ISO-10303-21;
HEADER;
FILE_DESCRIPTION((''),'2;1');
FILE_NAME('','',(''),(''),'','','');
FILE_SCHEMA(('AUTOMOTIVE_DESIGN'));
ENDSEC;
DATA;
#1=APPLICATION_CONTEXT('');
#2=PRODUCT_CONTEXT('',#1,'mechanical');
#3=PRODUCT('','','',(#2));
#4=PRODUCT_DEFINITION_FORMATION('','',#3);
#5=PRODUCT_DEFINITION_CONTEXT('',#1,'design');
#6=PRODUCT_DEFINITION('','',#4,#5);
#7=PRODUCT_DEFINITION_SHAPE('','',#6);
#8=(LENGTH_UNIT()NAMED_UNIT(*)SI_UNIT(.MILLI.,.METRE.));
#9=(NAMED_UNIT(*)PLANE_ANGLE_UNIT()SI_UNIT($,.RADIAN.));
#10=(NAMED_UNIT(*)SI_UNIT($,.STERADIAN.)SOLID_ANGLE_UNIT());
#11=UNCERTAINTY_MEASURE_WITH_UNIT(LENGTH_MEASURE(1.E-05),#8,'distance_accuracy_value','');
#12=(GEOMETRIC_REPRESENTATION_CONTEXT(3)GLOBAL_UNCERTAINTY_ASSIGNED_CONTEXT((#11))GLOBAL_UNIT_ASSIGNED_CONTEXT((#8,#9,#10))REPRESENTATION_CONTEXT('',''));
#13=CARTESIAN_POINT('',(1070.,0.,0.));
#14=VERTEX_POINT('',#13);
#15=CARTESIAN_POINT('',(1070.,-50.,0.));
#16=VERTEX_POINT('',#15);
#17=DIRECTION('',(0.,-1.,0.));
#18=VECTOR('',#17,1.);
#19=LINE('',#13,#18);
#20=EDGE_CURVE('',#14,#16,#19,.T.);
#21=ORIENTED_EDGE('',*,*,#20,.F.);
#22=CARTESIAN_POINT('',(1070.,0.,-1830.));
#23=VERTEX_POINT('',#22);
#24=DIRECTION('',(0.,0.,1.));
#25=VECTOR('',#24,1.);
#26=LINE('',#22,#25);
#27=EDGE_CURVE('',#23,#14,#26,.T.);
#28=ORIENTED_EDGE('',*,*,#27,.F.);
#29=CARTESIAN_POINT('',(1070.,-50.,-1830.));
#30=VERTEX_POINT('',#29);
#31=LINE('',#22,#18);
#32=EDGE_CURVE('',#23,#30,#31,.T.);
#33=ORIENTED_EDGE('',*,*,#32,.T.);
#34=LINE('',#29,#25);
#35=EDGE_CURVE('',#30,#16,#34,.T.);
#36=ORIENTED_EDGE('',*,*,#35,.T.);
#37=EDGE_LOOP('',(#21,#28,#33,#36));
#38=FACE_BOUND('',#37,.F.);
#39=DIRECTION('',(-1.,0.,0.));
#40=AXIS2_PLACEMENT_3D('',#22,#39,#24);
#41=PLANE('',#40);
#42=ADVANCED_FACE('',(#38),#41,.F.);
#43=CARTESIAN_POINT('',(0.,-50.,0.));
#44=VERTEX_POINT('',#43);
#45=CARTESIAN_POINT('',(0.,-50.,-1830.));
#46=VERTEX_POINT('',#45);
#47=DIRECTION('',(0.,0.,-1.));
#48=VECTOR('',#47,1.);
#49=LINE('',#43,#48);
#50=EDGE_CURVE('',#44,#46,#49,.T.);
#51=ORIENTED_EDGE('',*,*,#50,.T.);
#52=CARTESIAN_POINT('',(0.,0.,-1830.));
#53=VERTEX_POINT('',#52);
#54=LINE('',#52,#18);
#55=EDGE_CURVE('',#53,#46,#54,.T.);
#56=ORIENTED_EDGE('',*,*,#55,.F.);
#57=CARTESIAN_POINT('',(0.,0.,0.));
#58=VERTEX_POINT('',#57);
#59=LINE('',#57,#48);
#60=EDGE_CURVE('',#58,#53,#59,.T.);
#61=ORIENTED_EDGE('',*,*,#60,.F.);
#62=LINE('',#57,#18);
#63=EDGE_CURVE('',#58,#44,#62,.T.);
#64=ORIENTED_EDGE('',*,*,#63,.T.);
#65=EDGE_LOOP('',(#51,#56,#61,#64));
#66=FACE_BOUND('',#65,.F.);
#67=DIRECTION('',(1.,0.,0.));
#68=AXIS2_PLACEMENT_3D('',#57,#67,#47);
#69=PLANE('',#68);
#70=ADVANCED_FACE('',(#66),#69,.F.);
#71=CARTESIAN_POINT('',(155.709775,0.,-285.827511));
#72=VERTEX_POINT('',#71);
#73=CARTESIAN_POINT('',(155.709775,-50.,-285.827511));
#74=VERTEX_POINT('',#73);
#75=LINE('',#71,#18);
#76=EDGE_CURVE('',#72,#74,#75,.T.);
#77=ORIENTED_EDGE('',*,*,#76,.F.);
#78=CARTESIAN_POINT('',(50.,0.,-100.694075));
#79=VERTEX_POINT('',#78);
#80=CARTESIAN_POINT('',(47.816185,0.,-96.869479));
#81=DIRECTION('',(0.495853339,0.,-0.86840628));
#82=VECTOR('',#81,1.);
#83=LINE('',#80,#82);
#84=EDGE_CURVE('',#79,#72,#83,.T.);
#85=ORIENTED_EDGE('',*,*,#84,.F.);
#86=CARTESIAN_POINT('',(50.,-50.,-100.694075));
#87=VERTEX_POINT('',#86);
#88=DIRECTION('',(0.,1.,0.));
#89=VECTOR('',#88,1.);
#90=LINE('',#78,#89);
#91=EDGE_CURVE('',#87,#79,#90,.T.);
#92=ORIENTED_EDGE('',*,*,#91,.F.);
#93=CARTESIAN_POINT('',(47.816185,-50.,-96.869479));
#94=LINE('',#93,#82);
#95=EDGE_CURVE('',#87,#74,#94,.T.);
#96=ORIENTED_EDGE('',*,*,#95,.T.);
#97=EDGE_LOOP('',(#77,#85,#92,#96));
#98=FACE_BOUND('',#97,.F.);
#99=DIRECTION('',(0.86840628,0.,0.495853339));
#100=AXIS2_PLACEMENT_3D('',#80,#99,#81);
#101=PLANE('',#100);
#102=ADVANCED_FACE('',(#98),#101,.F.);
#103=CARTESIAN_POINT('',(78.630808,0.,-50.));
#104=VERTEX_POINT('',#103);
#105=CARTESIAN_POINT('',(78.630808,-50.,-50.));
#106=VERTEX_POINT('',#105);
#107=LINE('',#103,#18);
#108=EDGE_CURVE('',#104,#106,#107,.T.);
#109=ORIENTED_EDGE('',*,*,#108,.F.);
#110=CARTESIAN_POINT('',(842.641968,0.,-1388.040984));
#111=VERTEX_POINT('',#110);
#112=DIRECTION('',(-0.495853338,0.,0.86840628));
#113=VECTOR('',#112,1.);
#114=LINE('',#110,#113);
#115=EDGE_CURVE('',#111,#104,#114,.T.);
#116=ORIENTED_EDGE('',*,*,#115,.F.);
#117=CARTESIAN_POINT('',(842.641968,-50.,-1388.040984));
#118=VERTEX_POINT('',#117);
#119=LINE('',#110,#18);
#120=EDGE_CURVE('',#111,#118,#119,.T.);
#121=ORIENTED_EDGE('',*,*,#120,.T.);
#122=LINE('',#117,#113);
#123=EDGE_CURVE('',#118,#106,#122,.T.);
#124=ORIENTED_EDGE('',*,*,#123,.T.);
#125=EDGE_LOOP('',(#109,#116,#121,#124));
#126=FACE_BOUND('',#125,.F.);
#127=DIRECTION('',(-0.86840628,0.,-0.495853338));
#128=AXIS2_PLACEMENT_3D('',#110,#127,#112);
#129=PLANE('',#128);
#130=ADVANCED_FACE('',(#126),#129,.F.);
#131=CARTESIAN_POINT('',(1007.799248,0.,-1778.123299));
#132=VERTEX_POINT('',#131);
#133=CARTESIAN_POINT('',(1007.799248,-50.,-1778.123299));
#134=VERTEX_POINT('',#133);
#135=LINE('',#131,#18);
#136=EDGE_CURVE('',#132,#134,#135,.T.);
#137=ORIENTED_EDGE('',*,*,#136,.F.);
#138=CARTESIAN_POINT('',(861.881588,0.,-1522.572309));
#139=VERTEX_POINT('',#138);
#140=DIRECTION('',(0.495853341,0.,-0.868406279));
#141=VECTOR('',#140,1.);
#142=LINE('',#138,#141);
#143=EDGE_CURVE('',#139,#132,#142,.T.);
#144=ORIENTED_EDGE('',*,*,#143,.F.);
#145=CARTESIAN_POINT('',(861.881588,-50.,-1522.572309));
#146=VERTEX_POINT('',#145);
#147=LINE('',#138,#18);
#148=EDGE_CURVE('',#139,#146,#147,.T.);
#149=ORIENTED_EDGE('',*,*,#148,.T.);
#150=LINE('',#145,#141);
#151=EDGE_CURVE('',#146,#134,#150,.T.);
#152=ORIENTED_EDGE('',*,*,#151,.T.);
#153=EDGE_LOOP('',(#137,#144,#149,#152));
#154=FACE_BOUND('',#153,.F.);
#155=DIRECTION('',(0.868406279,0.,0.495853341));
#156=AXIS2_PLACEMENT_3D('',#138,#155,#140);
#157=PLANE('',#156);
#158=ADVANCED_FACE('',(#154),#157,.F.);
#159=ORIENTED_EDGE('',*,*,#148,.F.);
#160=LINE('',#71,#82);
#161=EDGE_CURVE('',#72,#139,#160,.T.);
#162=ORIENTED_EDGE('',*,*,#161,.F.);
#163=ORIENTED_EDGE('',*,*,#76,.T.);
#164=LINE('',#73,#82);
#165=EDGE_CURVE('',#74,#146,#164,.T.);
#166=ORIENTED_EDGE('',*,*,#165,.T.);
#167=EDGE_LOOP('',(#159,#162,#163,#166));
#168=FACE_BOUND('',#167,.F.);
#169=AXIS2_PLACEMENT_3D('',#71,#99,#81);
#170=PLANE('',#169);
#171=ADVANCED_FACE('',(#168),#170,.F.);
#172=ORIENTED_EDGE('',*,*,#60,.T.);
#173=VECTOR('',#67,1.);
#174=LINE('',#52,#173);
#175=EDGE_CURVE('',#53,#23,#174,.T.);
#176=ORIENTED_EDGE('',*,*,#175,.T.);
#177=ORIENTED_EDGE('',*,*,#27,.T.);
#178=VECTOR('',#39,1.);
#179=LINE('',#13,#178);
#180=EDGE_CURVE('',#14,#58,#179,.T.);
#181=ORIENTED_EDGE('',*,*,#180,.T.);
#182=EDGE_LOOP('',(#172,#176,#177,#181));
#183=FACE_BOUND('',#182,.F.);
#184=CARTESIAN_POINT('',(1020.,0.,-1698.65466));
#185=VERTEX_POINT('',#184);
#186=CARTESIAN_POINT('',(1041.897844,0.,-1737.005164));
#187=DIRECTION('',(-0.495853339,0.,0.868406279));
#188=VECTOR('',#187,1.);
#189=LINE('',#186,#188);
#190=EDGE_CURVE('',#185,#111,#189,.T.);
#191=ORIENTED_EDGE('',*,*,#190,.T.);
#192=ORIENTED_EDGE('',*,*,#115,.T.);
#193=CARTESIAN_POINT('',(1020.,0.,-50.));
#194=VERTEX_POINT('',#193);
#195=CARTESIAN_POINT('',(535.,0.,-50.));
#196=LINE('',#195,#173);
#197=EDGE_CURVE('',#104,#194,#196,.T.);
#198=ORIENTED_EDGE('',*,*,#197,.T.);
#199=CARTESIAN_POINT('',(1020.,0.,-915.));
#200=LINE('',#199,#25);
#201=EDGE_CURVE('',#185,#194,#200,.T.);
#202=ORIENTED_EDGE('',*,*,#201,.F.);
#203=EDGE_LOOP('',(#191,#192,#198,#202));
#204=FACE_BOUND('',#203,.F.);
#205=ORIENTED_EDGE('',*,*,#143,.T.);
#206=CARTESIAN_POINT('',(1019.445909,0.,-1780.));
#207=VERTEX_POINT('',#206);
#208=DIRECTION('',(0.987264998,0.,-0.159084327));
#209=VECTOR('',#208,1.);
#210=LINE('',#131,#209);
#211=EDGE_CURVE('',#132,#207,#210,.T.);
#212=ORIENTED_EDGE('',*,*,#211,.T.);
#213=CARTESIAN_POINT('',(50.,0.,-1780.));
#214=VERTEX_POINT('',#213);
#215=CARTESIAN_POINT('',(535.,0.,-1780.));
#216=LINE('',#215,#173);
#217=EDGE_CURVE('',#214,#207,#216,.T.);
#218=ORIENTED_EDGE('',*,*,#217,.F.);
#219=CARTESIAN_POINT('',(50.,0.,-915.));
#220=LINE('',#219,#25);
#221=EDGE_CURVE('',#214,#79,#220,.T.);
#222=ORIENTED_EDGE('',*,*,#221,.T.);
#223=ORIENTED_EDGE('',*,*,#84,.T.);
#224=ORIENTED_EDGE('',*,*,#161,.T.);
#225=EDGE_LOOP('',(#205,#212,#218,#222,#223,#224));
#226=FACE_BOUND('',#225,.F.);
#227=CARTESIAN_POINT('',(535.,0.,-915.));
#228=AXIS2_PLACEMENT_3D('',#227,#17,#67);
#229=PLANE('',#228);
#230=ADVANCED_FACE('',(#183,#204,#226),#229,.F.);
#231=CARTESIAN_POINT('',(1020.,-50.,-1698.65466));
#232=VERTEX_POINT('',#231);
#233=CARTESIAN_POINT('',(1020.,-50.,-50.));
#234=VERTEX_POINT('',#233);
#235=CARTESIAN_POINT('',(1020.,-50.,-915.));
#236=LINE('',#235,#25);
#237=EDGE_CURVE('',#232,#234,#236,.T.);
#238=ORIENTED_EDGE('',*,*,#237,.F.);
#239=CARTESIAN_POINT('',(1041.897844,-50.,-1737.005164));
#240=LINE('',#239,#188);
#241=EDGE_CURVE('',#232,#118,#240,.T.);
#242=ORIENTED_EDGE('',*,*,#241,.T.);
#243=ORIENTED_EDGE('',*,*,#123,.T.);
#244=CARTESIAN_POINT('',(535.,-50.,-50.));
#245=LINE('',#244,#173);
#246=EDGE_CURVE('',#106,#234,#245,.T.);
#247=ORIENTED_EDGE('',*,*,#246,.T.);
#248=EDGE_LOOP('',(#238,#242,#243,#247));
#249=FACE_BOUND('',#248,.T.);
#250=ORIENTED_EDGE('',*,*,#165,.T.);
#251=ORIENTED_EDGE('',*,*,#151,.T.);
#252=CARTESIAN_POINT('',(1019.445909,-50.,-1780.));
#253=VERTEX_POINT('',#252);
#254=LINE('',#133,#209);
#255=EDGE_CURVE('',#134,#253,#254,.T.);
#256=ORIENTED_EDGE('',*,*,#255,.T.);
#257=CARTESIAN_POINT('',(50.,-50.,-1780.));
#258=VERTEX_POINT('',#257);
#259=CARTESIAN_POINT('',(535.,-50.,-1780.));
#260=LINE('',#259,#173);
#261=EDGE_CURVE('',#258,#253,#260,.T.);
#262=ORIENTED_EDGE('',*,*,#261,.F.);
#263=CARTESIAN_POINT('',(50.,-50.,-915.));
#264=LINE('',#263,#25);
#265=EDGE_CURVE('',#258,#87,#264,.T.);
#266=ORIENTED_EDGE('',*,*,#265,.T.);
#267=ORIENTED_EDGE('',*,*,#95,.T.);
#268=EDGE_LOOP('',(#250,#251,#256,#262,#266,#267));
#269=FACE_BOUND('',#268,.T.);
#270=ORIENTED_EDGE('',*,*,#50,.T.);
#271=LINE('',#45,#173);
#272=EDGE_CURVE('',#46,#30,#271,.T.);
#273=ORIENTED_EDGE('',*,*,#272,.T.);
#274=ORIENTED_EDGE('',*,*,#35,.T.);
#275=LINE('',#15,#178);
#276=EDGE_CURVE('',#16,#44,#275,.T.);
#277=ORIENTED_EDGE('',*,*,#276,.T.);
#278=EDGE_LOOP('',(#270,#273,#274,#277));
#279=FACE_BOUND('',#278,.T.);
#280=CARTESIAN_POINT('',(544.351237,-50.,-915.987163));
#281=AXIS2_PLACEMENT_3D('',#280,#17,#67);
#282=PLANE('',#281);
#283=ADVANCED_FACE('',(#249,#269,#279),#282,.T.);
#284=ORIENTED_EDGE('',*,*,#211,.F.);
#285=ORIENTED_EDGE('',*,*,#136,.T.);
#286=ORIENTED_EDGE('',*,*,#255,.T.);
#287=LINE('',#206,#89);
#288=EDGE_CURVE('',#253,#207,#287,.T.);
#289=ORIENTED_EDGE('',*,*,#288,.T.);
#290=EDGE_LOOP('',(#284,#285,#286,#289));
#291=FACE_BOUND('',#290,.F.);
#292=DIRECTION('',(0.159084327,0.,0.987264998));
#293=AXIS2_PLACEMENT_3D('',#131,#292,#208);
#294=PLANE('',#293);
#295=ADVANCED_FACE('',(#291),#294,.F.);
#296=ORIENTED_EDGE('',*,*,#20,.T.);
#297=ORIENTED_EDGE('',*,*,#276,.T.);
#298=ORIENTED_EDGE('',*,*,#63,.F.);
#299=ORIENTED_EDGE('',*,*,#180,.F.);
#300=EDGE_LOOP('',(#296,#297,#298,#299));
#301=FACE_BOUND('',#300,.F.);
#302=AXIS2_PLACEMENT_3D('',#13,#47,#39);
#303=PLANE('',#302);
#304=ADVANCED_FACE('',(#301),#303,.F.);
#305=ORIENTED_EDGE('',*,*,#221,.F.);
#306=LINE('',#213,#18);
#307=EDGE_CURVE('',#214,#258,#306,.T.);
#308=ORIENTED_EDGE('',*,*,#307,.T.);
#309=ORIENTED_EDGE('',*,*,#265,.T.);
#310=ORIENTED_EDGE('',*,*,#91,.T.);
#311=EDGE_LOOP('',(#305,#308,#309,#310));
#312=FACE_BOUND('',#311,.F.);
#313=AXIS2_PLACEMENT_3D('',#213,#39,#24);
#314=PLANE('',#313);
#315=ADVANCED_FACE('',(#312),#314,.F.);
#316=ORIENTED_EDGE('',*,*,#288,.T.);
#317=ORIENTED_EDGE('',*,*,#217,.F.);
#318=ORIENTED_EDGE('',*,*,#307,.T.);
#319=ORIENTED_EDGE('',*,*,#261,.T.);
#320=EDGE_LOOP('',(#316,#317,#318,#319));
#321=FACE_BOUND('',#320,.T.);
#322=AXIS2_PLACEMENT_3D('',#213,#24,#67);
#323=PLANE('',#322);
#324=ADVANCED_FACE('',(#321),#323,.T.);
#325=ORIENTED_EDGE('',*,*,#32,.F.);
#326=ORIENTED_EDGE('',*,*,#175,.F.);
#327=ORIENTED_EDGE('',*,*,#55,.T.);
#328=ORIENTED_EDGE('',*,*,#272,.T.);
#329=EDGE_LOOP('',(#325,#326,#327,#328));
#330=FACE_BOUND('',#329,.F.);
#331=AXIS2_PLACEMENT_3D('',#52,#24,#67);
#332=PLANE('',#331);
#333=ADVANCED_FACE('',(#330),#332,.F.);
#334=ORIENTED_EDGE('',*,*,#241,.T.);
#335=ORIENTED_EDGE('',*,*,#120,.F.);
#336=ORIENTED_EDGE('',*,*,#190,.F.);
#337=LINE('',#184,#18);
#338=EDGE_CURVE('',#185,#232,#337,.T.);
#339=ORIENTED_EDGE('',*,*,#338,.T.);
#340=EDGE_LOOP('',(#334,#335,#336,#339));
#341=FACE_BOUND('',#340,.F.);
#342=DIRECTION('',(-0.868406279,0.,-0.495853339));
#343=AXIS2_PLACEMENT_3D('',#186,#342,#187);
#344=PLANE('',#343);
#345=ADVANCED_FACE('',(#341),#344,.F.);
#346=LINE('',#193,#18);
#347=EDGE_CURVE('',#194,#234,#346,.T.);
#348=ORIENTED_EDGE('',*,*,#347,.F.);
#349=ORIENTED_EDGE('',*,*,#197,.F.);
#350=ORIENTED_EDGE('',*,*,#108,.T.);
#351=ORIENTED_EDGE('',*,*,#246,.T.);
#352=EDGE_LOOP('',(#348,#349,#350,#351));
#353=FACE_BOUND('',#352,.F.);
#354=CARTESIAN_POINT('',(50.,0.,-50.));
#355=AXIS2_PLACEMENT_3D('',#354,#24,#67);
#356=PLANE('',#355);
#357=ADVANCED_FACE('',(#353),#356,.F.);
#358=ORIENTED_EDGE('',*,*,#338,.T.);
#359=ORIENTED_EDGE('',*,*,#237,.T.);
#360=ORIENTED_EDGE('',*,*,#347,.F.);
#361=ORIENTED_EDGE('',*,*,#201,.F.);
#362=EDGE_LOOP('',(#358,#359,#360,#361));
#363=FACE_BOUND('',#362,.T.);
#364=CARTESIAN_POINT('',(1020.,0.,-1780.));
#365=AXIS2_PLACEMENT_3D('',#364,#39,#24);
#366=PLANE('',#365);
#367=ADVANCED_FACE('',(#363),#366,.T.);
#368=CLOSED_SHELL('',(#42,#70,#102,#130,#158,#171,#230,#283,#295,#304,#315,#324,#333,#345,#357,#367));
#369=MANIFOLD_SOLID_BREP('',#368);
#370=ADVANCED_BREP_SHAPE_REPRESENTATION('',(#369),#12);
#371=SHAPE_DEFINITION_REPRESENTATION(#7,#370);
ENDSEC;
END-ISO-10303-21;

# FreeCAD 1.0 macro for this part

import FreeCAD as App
import Part
import Sketcher


def add_polygon(sketch, points):
    """Adds a closed chain of lines whose ends are joined by coincident constraints."""
    first, n = sketch.GeometryCount, len(points)
    for a, b in zip(points, points[1:] + points[:1]):
        sketch.addGeometry(Part.LineSegment(App.Vector(*a, 0), App.Vector(*b, 0)), False)
    for i in range(n):
        sketch.addConstraint(Sketcher.Constraint("Coincident", first + i, 2, first + (i + 1) % n, 1))

doc = App.newDocument("Part")
params = doc.addObject("Spreadsheet::Sheet", "Params")
for row, (alias, value) in enumerate([
    ("sketch1_width", "1070 mm"),
    ("sketch1_width2", "970 mm"),
    ("sketch1_height", "1830 mm"),
    ("sketch1_height2", "1730 mm"),
    ("pad1_length", "50 mm"),
    ("pad2_length", "50 mm"),
], start=1):
    params.set(f"A{row}", alias)
    params.set(f"B{row}", "=" + value)
    params.setAlias(f"B{row}", alias)

body = doc.addObject("PartDesign::Body", "Body")

sketch1 = doc.addObject("Sketcher::SketchObject", "Sketch")
body.addObject(sketch1)
sketch1.AttachmentSupport = (doc.XZ_Plane, [""])
sketch1.MapMode = "FlatFace"
add_polygon(sketch1, [(0, 0), (0, -1830), (1070, -1830), (1070, 0)])
add_polygon(sketch1, [(1020, -1780), (50, -1780), (50, -50), (1020, -50)])
sketch1.addConstraint([
    Sketcher.Constraint("Vertical", 0),
    Sketcher.Constraint("Horizontal", 1),
    Sketcher.Constraint("Vertical", 2),
    Sketcher.Constraint("Horizontal", 3),
    Sketcher.Constraint("Horizontal", 4),
    Sketcher.Constraint("Vertical", 5),
    Sketcher.Constraint("Horizontal", 6),
    Sketcher.Constraint("Vertical", 7),
    Sketcher.Constraint("Coincident", 3, 2, -1, 1),
    Sketcher.Constraint("DistanceX", 1, 1, 1, 2, 1070.0),
    Sketcher.Constraint("DistanceX", 4, 2, 4, 1, 970.0),
    Sketcher.Constraint("DistanceY", 0, 2, 0, 1, 1830.0),
    Sketcher.Constraint("DistanceY", 5, 1, 5, 2, 1730.0),
    Sketcher.Constraint("DistanceX", -1, 1, 4, 2, 50.0),
    Sketcher.Constraint("DistanceY", 4, 2, -1, 1, 1780.0),
])
sketch1.setExpression("Constraints[17]", "Params.sketch1_width")
sketch1.setExpression("Constraints[18]", "Params.sketch1_width2")
sketch1.setExpression("Constraints[19]", "Params.sketch1_height")
sketch1.setExpression("Constraints[20]", "Params.sketch1_height2")
pad1 = doc.addObject("PartDesign::Pad", "Pad")
body.addObject(pad1)
pad1.Profile = sketch1
pad1.setExpression("Length", "Params.pad1_length")

sketch2 = doc.addObject("Sketcher::SketchObject", "Sketch001")
body.addObject(sketch2)
sketch2.AttachmentSupport = (doc.XZ_Plane, [""])
sketch2.MapMode = "FlatFace"
add_polygon(sketch2, [(1041.897844, -1737.005164), (842.641968, -1388.040984), (78.297675, -49.416571), (49.824655, -49.968854), (47.816185, -96.869479), (155.709775, -285.827511), (861.881588, -1522.572309), (1007.799248, -1778.123299), (1039.504766, -1783.232212)])
sketch2.addConstraint([
    Sketcher.Constraint("Parallel", 0, 1),
    Sketcher.Constraint("Parallel", 1, 4),
    Sketcher.Constraint("Parallel", 4, 5),
    Sketcher.Constraint("Parallel", 5, 6),
    Sketcher.Constraint("Distance", 5, 1424.1546),
    Sketcher.Constraint("DistanceY", 6, 2, -1, 1, 1778.123299),
    Sketcher.Constraint("DistanceX", 1, 2, 4, 2, 77.4121),
    Sketcher.Constraint("DistanceY", 5, 2, 4, 2, 1236.744798),
    Sketcher.Constraint("DistanceX", 0, 2, 7, 2, 196.862798),
    Sketcher.Constraint("DistanceY", 7, 2, 4, 2, 1497.404701),
    Sketcher.Constraint("Distance", 3, 46.943611),
    Sketcher.Constraint("Distance", 4, 217.591738),
    Sketcher.Constraint("Distance", 8, 46.288949),
    Sketcher.Constraint("DistanceX", -1, 1, 0, 2, 842.641968),
    Sketcher.Constraint("DistanceY", 1, 2, -1, 1, 49.416571),
    Sketcher.Constraint("DistanceY", 3, 2, -1, 1, 96.869479),
    Sketcher.Constraint("DistanceX", -1, 1, 5, 2, 861.881588),
    Sketcher.Constraint("DistanceX", 2, 2, 1, 2, 28.47302),
])
pad2 = doc.addObject("PartDesign::Pad", "Pad001")
body.addObject(pad2)
pad2.Profile = sketch2
pad2.setExpression("Length", "Params.pad2_length")

doc.recompute()
